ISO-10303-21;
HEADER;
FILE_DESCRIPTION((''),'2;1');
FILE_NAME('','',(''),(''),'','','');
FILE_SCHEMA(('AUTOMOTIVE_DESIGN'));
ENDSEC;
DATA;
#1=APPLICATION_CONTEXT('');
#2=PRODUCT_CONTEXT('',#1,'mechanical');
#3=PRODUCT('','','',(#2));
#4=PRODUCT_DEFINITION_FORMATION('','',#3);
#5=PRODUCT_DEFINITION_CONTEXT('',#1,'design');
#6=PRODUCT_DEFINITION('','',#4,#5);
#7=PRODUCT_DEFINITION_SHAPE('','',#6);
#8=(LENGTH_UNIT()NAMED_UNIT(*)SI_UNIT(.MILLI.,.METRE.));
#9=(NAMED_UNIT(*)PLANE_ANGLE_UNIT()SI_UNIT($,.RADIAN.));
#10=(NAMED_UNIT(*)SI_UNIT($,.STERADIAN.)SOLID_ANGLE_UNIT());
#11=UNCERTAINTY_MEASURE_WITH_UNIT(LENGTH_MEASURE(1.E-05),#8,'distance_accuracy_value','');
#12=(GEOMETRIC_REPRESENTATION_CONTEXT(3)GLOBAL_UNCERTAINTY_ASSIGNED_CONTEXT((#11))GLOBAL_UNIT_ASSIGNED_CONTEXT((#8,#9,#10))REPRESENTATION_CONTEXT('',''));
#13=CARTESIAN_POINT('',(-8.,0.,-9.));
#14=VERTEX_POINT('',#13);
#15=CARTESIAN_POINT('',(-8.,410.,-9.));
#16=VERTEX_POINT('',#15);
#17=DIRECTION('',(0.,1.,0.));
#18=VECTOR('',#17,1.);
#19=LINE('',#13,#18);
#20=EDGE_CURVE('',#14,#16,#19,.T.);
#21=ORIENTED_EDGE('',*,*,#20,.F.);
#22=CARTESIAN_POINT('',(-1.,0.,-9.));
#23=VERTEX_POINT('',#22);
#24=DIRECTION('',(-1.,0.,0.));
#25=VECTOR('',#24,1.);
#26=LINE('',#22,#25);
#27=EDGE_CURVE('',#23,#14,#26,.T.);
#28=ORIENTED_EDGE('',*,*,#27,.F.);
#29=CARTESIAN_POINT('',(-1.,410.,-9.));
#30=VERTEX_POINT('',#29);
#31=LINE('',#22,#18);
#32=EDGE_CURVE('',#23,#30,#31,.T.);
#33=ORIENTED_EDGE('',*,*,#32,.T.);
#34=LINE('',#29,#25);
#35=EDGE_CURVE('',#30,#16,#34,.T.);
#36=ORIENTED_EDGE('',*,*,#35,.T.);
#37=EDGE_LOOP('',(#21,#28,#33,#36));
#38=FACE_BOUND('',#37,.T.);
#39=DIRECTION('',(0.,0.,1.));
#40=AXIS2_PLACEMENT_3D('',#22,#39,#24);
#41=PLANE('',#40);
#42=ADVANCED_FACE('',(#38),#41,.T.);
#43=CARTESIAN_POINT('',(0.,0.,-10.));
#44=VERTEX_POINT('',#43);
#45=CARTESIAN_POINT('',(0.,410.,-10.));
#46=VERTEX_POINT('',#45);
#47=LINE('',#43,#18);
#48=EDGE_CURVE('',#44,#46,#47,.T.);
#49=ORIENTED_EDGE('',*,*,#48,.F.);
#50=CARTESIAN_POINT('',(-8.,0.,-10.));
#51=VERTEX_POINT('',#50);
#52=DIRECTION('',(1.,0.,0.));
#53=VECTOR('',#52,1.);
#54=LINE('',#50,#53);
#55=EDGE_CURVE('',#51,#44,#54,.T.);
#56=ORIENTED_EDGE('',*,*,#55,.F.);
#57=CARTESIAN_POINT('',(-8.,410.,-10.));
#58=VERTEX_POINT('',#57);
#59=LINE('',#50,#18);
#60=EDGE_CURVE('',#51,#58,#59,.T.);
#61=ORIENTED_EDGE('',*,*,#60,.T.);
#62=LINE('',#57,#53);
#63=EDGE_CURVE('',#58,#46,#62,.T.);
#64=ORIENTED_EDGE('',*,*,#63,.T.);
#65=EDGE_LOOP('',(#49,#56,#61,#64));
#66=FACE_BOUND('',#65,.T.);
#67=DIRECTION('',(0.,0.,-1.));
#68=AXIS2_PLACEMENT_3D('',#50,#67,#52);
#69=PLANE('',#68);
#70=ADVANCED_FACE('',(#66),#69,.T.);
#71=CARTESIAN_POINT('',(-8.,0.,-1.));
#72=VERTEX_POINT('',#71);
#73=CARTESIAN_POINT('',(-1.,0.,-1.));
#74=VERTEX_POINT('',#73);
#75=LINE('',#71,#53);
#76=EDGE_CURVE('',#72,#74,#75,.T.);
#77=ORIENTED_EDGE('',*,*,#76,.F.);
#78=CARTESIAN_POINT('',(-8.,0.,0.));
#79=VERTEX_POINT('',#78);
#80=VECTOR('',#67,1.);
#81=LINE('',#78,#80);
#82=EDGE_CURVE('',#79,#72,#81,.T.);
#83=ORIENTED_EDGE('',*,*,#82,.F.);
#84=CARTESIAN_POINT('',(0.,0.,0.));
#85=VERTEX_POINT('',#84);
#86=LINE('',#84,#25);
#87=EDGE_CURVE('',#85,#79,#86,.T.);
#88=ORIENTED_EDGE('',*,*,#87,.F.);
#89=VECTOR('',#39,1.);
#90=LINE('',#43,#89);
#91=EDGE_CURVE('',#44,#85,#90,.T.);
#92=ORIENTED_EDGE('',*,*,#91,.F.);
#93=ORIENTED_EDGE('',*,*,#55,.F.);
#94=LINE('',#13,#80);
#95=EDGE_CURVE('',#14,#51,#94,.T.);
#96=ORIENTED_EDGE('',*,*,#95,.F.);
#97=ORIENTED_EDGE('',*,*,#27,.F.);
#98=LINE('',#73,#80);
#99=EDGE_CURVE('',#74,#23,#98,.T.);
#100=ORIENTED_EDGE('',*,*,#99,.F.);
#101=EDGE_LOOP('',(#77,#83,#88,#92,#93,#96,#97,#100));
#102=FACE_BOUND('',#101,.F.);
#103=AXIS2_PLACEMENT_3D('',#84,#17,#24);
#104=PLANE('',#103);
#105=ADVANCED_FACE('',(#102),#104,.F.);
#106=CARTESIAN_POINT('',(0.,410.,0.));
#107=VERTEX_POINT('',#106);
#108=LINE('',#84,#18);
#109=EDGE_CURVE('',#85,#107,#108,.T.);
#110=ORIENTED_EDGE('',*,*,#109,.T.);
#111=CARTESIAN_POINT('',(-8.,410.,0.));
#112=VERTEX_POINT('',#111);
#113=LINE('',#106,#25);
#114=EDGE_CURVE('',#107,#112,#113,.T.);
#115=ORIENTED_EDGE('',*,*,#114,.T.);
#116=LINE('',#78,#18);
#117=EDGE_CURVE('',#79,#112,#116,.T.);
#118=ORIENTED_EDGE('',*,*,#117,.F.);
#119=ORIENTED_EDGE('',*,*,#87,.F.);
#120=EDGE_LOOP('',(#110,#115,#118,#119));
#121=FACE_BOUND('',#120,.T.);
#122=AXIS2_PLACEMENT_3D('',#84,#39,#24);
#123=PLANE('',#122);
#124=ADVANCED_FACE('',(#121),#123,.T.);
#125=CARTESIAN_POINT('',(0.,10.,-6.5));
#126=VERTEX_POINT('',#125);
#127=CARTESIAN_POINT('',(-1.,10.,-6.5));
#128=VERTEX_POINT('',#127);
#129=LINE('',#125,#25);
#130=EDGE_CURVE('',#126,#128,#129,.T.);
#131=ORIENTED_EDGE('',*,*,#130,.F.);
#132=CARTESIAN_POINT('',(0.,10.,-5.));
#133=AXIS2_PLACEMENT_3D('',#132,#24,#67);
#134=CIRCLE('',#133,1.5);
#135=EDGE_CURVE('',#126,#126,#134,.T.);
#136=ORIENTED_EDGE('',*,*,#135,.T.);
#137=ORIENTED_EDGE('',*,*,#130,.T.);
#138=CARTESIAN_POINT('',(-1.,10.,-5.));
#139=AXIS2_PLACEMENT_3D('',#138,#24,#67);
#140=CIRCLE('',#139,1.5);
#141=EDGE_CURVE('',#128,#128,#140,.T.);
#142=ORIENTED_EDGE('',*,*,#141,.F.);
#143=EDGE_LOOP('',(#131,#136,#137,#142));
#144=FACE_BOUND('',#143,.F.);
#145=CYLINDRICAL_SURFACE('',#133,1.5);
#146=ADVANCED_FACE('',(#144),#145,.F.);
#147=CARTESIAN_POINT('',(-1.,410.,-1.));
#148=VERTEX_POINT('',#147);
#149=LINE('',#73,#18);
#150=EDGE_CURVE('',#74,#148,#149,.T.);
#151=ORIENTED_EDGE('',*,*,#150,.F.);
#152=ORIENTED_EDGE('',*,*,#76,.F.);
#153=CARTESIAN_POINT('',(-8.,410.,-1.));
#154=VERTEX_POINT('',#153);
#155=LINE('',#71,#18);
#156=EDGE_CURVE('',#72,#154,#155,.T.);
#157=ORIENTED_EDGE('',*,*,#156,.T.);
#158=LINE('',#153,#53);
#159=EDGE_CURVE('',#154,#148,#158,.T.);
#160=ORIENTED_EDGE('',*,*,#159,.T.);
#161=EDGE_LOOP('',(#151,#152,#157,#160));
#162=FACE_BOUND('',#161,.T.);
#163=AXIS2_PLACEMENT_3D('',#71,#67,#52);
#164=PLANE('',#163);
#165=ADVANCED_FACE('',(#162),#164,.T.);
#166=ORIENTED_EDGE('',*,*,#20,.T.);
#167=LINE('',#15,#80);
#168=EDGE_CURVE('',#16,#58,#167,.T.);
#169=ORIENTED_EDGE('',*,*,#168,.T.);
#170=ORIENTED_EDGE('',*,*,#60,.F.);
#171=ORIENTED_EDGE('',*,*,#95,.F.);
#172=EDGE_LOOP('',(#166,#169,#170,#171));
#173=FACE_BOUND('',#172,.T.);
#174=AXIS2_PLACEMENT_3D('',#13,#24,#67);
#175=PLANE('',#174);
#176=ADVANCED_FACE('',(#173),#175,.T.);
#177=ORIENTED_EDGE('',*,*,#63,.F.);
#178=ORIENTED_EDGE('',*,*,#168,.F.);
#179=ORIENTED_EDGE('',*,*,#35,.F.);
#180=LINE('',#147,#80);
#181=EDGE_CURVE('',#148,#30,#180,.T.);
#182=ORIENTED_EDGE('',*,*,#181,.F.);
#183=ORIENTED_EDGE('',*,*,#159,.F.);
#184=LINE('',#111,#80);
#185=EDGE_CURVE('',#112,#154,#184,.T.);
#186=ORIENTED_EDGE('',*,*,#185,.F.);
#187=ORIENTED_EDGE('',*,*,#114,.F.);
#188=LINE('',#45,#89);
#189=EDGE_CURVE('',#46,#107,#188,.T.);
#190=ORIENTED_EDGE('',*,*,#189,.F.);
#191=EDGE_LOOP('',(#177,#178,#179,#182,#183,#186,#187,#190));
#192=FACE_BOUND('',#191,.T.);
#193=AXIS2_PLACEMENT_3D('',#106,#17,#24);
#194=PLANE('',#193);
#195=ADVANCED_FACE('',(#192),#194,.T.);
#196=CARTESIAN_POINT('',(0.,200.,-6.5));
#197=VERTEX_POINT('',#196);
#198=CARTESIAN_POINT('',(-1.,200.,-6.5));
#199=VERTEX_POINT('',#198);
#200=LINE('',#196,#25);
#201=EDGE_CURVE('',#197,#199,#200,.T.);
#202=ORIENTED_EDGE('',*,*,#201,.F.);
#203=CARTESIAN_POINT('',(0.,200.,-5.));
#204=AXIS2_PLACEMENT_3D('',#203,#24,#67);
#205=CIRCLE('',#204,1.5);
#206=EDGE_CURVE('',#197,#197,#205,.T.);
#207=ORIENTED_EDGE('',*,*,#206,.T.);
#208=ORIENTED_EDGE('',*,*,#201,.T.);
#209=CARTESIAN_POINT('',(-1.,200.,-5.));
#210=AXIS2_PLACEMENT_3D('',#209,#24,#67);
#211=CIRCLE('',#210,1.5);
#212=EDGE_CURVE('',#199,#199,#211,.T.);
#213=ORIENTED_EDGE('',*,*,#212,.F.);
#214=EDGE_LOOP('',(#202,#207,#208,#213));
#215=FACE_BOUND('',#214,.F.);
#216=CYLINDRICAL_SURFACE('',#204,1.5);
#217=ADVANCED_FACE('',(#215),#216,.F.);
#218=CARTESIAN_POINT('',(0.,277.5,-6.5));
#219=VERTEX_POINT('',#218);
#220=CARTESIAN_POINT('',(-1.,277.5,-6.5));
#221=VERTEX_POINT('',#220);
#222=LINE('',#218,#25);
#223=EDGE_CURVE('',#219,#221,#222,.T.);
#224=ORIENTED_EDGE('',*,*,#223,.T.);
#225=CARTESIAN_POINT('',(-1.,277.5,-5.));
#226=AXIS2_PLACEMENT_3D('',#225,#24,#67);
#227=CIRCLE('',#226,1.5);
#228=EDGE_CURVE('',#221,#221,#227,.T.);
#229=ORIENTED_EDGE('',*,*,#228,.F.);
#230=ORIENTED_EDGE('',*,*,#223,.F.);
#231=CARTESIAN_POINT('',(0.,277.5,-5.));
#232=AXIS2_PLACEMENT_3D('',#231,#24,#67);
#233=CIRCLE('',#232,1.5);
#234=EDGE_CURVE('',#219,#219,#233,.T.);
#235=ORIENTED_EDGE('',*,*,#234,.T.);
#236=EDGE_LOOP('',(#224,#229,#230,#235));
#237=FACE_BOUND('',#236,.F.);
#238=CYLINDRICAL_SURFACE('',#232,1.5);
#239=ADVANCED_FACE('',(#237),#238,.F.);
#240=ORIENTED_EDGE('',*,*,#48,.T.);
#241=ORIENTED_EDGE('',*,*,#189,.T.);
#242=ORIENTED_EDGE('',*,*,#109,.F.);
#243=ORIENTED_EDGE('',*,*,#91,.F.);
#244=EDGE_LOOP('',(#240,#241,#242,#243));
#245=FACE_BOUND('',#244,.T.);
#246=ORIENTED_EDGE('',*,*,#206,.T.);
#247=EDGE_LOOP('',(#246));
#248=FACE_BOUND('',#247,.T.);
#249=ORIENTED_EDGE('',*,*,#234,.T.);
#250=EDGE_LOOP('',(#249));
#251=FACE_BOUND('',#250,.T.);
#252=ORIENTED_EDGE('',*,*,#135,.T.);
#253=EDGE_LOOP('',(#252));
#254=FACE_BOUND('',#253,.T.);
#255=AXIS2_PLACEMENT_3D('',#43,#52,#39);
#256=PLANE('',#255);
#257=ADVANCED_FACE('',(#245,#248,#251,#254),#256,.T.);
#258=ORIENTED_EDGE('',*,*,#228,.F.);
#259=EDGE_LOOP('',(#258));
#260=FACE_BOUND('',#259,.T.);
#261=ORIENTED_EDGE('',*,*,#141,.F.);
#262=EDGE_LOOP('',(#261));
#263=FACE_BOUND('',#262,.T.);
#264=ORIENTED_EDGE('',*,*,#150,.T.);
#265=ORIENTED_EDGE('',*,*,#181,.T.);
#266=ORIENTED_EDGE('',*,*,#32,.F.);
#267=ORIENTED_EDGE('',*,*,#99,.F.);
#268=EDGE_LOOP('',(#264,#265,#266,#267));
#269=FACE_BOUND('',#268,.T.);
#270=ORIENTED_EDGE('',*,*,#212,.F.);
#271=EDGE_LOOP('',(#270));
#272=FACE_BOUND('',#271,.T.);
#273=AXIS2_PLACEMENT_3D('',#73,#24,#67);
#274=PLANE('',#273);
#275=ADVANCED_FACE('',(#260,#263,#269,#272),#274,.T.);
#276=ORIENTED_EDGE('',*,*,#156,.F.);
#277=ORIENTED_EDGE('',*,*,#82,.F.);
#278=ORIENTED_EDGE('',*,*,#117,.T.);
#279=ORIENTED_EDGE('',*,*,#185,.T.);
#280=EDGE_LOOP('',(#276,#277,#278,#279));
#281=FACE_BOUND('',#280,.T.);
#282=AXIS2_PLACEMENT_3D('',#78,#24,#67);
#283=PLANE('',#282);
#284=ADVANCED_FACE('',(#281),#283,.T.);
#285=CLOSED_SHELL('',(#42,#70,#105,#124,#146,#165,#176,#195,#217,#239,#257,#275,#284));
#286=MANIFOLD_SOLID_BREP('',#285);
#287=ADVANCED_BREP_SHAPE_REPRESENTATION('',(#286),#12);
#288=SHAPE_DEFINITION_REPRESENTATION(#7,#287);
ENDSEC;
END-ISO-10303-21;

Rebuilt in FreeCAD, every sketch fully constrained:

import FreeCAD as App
import Part
import Sketcher
from FreeCAD import Vector
Q = App.Units.Quantity


def add_polygon(sketch, points):
    """Adds a closed chain of lines whose ends are joined by coincident constraints."""
    first, n = sketch.GeometryCount, len(points)
    for a, b in zip(points, points[1:] + points[:1]):
        sketch.addGeometry(Part.LineSegment(App.Vector(*a, 0), App.Vector(*b, 0)), False)
    for i in range(n):
        sketch.addConstraint(Sketcher.Constraint("Coincident", first + i, 2, first + (i + 1) % n, 1))

doc = App.newDocument("Part")
body = doc.addObject("PartDesign::Body", "Body")

sketch1 = body.newObject("Sketcher::SketchObject", "Sketch")
sketch1.AttachmentSupport = (doc.getObject("XZ_Plane"), [""])
sketch1.MapMode = "FlatFace"
add_polygon(sketch1, [(-8, 0), (0, 0), (0, -10), (-8, -10), (-8, -9), (-1, -9), (-1, -1), (-8, -1)])
sketch1.addConstraint(Sketcher.Constraint("Horizontal", 0))
sketch1.addConstraint(Sketcher.Constraint("Vertical", 1))
sketch1.addConstraint(Sketcher.Constraint("Horizontal", 2))
sketch1.addConstraint(Sketcher.Constraint("Vertical", 3))
sketch1.addConstraint(Sketcher.Constraint("Horizontal", 4))
sketch1.addConstraint(Sketcher.Constraint("Vertical", 5))
sketch1.addConstraint(Sketcher.Constraint("Horizontal", 6))
sketch1.addConstraint(Sketcher.Constraint("Vertical", 7))
sketch1.addConstraint(Sketcher.Constraint("Coincident", 0, 2, -1, 1))
sketch1.addConstraint(Sketcher.Constraint("Vertical", 3, 2, 6, 2))
sketch1.addConstraint(Sketcher.Constraint("Equal", 2, 5))
sketch1.addConstraint(Sketcher.Constraint("Equal", 3, 7))
sketch1.addConstraint(Sketcher.Constraint("DistanceX", 0, 1, 0, 2, Q("8 mm")))
sketch1.addConstraint(Sketcher.Constraint("DistanceY", 1, 2, 1, 1, Q("10 mm")))
sketch1.addConstraint(Sketcher.Constraint("DistanceX", 4, 2, -1, 1, Q("1 mm")))
pad1 = body.newObject("PartDesign::Pad", "Pad")
pad1.Profile = sketch1
pad1.Length = 410
pad1.Reversed = True

sketch2 = body.newObject("Sketcher::SketchObject", "Sketch001")
sketch2.AttachmentSupport = (doc.getObject("YZ_Plane"), [""])
sketch2.MapMode = "FlatFace"
sketch2.addGeometry(Part.Circle(Vector(10, -5, 0), Vector(0, 0, 1), 1.5), False)
sketch2.addConstraint(Sketcher.Constraint("Diameter", 0, Q("3 mm")))
sketch2.addConstraint(Sketcher.Constraint("DistanceX", -1, 1, 0, 3, Q("10 mm")))
sketch2.addConstraint(Sketcher.Constraint("DistanceY", 0, 3, -1, 1, Q("5 mm")))
doc.recompute()
hole = body.newObject("PartDesign::Hole", "Hole")
hole.Profile = sketch2
hole.ThreadType = "None"
hole.Diameter = 3
hole.DepthType = "Dimension"
hole.Depth = 8
hole.DrillPoint = "Angled"
hole.DrillPointAngle = 118

sketch3 = body.newObject("Sketcher::SketchObject", "Sketch002")
sketch3.AttachmentSupport = (doc.getObject("YZ_Plane"), [""])
sketch3.MapMode = "FlatFace"
sketch3.addGeometry(Part.Circle(Vector(277.5, -5, 0), Vector(0, 0, 1), 1.5), False)
sketch3.addConstraint(Sketcher.Constraint("Diameter", 0, Q("3 mm")))
sketch3.addConstraint(Sketcher.Constraint("DistanceY", 0, 3, -1, 1, Q("5 mm")))
sketch3.addConstraint(Sketcher.Constraint("DistanceX", -1, 1, 0, 3, Q("277.5 mm")))
doc.recompute()
hole2 = body.newObject("PartDesign::Hole", "Hole001")
hole2.Profile = sketch3
hole2.ThreadType = "None"
hole2.Diameter = 3
hole2.DepthType = "Dimension"
hole2.Depth = 8
hole2.DrillPoint = "Angled"
hole2.DrillPointAngle = 118

sketch4 = body.newObject("Sketcher::SketchObject", "Sketch003")
sketch4.AttachmentSupport = (doc.getObject("YZ_Plane"), [""])
sketch4.MapMode = "FlatFace"
sketch4.addGeometry(Part.Circle(Vector(200, -5, 0), Vector(0, 0, 1), 1.5), False)
sketch4.addConstraint(Sketcher.Constraint("Diameter", 0, Q("3 mm")))
sketch4.addConstraint(Sketcher.Constraint("DistanceX", -1, 1, 0, 3, Q("200 mm")))
sketch4.addConstraint(Sketcher.Constraint("DistanceY", 0, 3, -1, 1, Q("5 mm")))
doc.recompute()
hole3 = body.newObject("PartDesign::Hole", "Hole002")
hole3.Profile = sketch4
hole3.ThreadType = "None"
hole3.Diameter = 3
hole3.DepthType = "Dimension"
hole3.Depth = 8
hole3.DrillPoint = "Angled"
hole3.DrillPointAngle = 118

doc.recompute()
